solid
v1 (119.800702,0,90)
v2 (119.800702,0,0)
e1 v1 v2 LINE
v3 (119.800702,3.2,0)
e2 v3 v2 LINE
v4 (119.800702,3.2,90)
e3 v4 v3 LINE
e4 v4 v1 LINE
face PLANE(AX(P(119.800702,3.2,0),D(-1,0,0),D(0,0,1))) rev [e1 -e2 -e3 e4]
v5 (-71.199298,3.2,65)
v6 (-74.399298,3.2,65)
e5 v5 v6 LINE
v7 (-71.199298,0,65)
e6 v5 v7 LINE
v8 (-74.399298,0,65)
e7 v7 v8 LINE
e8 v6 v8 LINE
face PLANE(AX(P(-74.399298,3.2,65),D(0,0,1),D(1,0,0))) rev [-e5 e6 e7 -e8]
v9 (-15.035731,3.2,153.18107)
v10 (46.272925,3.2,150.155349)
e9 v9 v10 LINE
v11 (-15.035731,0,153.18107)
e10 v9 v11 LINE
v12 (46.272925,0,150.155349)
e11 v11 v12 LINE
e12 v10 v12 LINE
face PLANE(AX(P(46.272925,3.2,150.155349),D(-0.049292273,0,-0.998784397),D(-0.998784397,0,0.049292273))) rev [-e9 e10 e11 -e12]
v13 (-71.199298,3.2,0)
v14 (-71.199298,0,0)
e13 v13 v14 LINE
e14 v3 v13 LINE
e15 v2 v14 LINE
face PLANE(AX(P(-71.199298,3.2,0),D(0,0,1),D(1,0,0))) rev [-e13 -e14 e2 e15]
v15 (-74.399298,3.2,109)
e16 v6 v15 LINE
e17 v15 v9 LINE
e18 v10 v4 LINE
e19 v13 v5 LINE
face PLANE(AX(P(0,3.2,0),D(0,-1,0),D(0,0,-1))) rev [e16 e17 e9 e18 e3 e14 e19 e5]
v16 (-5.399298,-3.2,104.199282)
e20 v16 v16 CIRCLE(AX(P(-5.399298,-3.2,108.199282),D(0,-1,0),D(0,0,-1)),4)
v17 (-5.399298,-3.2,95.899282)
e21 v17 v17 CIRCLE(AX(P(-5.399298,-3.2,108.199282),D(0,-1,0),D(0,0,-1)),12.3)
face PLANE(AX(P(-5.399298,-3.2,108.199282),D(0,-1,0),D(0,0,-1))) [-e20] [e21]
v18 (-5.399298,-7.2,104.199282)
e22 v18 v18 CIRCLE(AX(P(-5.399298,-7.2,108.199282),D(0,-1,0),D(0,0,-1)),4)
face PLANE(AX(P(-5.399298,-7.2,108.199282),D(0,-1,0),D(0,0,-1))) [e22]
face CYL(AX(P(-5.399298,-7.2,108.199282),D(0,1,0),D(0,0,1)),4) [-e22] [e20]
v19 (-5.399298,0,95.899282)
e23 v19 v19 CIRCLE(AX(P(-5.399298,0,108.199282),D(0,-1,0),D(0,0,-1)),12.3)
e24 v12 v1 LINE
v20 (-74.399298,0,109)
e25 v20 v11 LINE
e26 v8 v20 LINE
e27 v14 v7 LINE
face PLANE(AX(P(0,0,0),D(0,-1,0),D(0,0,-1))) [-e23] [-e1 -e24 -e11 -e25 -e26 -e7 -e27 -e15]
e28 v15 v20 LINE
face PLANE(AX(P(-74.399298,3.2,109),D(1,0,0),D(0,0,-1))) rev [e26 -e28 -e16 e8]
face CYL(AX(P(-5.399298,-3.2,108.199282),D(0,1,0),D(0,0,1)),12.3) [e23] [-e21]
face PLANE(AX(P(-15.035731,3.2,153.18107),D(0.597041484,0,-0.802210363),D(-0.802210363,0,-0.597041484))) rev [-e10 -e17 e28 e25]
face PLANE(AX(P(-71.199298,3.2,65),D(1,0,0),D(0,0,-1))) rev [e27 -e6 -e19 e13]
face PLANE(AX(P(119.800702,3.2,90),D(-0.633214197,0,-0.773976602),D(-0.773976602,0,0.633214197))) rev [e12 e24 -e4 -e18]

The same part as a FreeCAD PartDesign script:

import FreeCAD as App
import Part
import Sketcher


def add_polygon(sketch, points):
    """Adds a closed chain of lines whose ends are joined by coincident constraints."""
    first, n = sketch.GeometryCount, len(points)
    for a, b in zip(points, points[1:] + points[:1]):
        sketch.addGeometry(Part.LineSegment(App.Vector(*a, 0), App.Vector(*b, 0)), False)
    for i in range(n):
        sketch.addConstraint(Sketcher.Constraint("Coincident", first + i, 2, first + (i + 1) % n, 1))

doc = App.newDocument("Part")
body = doc.addObject("PartDesign::Body", "Body")

sketch1 = body.newObject("Sketcher::SketchObject", "Sketch")
sketch1.AttachmentSupport = (doc.getObject("XZ_Plane"), [""])
sketch1.MapMode = "FlatFace"
add_polygon(sketch1, [(119.800702, 0), (-71.199298, 0), (-71.199298, 65), (-74.399298, 65), (-74.399298, 109), (-15.035731, 153.18107), (46.272925, 150.155349), (119.800702, 90)])
sketch1.addConstraint([
    Sketcher.Constraint("Horizontal", 0),
    Sketcher.Constraint("Vertical", 1),
    Sketcher.Constraint("Horizontal", 2),
    Sketcher.Constraint("Vertical", 3),
    Sketcher.Constraint("Vertical", 7),
    Sketcher.Constraint("PointOnObject", 0, 2, -1),
    Sketcher.Constraint("DistanceX", 0, 2, 0, 1, 191.0),
    Sketcher.Constraint("DistanceY", 1, 1, 1, 2, 65.0),
    Sketcher.Constraint("DistanceY", 3, 1, 3, 2, 44.0),
    Sketcher.Constraint("DistanceY", 7, 2, 7, 1, 90.0),
    Sketcher.Constraint("Distance", 4, 74.0),
    Sketcher.Constraint("Distance", 6, 95.0),
    Sketcher.Constraint("DistanceX", 2, 2, 2, 1, 3.2),
    Sketcher.Constraint("DistanceX", 4, 2, -1, 1, 15.035731),
    Sketcher.Constraint("DistanceY", -1, 1, 4, 2, 153.18107),
    Sketcher.Constraint("DistanceY", -1, 1, 5, 2, 150.155349),
])
pad1 = body.newObject("PartDesign::Pad", "Pad")
pad1.Profile = sketch1
pad1.Length = 3.2
pad1.Reversed = True

sketch2 = body.newObject("Sketcher::SketchObject", "Sketch001")
sketch2.AttachmentSupport = (doc.getObject("XZ_Plane"), [""])
sketch2.MapMode = "FlatFace"
sketch2.addGeometry(Part.Circle(App.Vector(-5.399298, 108.199282, 0), App.Vector(0, 0, 1), 12.3), False)
sketch2.addConstraint([
    Sketcher.Constraint("Diameter", 0, 24.6),
    Sketcher.Constraint("DistanceY", -1, 1, 0, 3, 108.199282),
    Sketcher.Constraint("DistanceX", 0, 3, -1, 1, 5.399298),
])
pad2 = body.newObject("PartDesign::Pad", "Pad001")
pad2.Profile = sketch2
pad2.Length = 3.2

sketch3 = body.newObject("Sketcher::SketchObject", "Sketch002")
sketch3.AttachmentSupport = (doc.getObject("XZ_Plane"), [""])
sketch3.MapMode = "FlatFace"
sketch3.AttachmentOffset = App.Placement(App.Vector(0, 0, 3.2), App.Rotation())
sketch3.addGeometry(Part.Circle(App.Vector(-5.399298, 108.199282, 0), App.Vector(0, 0, 1), 4), False)
sketch3.addConstraint([
    Sketcher.Constraint("Diameter", 0, 8.0),
    Sketcher.Constraint("DistanceY", -1, 1, 0, 3, 108.199282),
    Sketcher.Constraint("DistanceX", 0, 3, -1, 1, 5.399298),
])
pad3 = body.newObject("PartDesign::Pad", "Pad002")
pad3.Profile = sketch3
pad3.Length = 4

doc.recompute()
